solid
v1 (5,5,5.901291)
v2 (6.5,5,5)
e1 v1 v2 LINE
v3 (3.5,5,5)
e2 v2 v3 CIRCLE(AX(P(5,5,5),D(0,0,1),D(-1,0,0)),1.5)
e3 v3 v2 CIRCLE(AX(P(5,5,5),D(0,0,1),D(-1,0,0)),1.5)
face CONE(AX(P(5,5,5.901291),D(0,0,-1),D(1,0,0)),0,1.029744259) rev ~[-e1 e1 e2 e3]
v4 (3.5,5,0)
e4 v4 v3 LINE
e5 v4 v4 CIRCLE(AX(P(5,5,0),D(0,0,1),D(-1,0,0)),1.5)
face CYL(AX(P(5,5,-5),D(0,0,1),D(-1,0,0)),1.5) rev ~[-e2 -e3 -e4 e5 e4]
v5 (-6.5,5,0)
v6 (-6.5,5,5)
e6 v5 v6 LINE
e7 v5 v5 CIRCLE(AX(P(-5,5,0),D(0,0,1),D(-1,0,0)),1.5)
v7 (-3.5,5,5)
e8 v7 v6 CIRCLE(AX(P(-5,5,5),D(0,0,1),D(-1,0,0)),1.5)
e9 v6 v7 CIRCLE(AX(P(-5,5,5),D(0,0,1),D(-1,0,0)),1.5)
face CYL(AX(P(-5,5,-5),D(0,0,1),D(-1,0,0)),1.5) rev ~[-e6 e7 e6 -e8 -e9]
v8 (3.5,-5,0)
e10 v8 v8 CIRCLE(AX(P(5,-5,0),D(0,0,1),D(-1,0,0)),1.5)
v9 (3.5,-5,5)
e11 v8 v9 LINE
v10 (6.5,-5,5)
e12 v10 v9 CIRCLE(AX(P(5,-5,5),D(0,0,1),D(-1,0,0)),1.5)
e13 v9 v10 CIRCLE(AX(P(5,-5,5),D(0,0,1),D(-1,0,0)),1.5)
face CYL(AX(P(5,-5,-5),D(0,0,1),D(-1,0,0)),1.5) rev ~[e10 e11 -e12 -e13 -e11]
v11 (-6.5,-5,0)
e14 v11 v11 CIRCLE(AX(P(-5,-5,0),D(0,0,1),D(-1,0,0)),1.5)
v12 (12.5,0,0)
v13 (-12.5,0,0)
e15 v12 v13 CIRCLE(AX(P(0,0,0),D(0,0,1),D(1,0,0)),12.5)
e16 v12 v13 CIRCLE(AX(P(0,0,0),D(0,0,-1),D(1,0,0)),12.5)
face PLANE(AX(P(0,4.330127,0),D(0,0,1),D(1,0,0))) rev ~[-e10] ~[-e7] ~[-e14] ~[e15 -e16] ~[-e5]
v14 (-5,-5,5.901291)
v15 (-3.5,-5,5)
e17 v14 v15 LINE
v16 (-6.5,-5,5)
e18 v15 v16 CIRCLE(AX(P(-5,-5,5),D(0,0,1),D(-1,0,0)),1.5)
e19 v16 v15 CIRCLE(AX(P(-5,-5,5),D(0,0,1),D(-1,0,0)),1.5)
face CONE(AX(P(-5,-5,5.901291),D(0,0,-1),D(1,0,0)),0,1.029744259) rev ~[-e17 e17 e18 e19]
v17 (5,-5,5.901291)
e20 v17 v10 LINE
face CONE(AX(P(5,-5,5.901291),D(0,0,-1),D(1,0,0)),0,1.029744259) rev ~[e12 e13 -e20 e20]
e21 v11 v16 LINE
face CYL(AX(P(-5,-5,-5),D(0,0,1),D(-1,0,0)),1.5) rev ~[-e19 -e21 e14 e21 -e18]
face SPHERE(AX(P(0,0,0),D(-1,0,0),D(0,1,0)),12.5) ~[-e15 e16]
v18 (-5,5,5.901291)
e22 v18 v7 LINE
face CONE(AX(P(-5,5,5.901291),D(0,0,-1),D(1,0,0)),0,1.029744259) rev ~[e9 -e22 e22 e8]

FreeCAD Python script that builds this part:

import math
import FreeCAD as App
import Part
import Sketcher

V = App.Vector
Q = App.Units.Quantity

doc = App.newDocument("Part")
body = doc.addObject("PartDesign::Body", "Body")

sketch1 = body.newObject("Sketcher::SketchObject", "Sketch")
sketch1.AttachmentSupport = (doc.getObject("XY_Plane"), [""])
sketch1.MapMode = "FlatFace"
sketch1.addGeometry(Part.LineSegment(V(-12, 0, 0), V(12, 0, 0)), False)
sketch1.addGeometry(Part.ArcOfCircle(Part.Circle(V(0, 0, 0), V(0, 0, 1), 12), math.radians(0), math.radians(180)), False)
sketch1.addConstraint(Sketcher.Constraint("Coincident", 0, 1, 1, 2))
sketch1.addConstraint(Sketcher.Constraint("Coincident", 1, 1, 0, 2))
sketch1.addConstraint(Sketcher.Constraint("Horizontal", 0))
sketch1.addConstraint(Sketcher.Constraint("Coincident", 1, 3, -1, 1))
sketch1.addConstraint(Sketcher.Constraint("PointOnObject", 0, 1, -1))
sketch1.addConstraint(Sketcher.Constraint("Radius", 1, Q("12.5 mm")))
revolution = body.newObject("PartDesign::Revolution", "Revolution")
revolution.Profile = sketch1
revolution.ReferenceAxis = (sketch1, ["H_Axis"])
revolution.Angle = 180

sketch2 = body.newObject("Sketcher::SketchObject", "Sketch001")
sketch2.AttachmentSupport = (doc.getObject("XY_Plane"), [""])
sketch2.MapMode = "FlatFace"
sketch2.addGeometry(Part.Circle(V(-5, -5, 0), V(0, 0, 1), 1.5), False)
sketch2.addGeometry(Part.Circle(V(5, -5, 0), V(0, 0, 1), 1.5), False)
sketch2.addGeometry(Part.Circle(V(5, 5, 0), V(0, 0, 1), 1.5), False)
sketch2.addGeometry(Part.Circle(V(-5, 5, 0), V(0, 0, 1), 1.5), False)
sketch2.addConstraint(Sketcher.Constraint("Equal", 0, 1))
sketch2.addConstraint(Sketcher.Constraint("Equal", 1, 2))
sketch2.addConstraint(Sketcher.Constraint("Equal", 2, 3))
sketch2.addConstraint(Sketcher.Constraint("Symmetric", 0, 3, 2, 3, -1, 1))
sketch2.addConstraint(Sketcher.Constraint("Symmetric", 1, 3, 3, 3, -1, 1))
sketch2.addConstraint(Sketcher.Constraint("Symmetric", 0, 3, 1, 3, -2))
sketch2.addConstraint(Sketcher.Constraint("Diameter", 0, Q("3 mm")))
sketch2.addConstraint(Sketcher.Constraint("DistanceX", 0, 3, -1, 1, Q("5 mm")))
sketch2.addConstraint(Sketcher.Constraint("DistanceY", 0, 3, -1, 1, Q("5 mm")))
doc.recompute()
hole = body.newObject("PartDesign::Hole", "Hole")
hole.Profile = sketch2
hole.ThreadType = "None"
hole.Diameter = 3
hole.DepthType = "Dimension"
hole.Depth = 5
hole.DrillPoint = "Angled"
hole.DrillPointAngle = 118
hole.Reversed = True

doc.recompute()
